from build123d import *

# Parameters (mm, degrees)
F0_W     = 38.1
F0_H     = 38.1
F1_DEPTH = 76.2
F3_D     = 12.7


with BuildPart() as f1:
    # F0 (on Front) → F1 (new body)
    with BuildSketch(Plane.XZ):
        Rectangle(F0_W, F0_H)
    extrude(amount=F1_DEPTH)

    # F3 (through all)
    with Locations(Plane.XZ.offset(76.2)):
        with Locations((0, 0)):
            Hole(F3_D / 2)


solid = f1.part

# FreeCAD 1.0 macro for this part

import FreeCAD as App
import Part
import Sketcher

V = App.Vector
Q = App.Units.Quantity


def add_polygon(sketch, points):
    """Adds a closed chain of lines whose ends are joined by coincident constraints."""
    first, n = sketch.GeometryCount, len(points)
    for a, b in zip(points, points[1:] + points[:1]):
        sketch.addGeometry(Part.LineSegment(App.Vector(*a, 0), App.Vector(*b, 0)), False)
    for i in range(n):
        sketch.addConstraint(Sketcher.Constraint("Coincident", first + i, 2, first + (i + 1) % n, 1))

doc = App.newDocument("Part")
body = doc.addObject("PartDesign::Body", "Body")

# Sketch on XZ plane
sketch1 = body.newObject("Sketcher::SketchObject", "Sketch")
sketch1.AttachmentSupport = (doc.getObject("XZ_Plane"), [""])
sketch1.MapMode = "FlatFace"
add_polygon(sketch1, [(-19.05, 19.05), (-19.05, -19.05), (19.05, -19.05), (19.05, 19.05)])  # lines 0-3
sketch1.addConstraint([
    Sketcher.Constraint("Vertical", 0),
    Sketcher.Constraint("Horizontal", 1),
    Sketcher.Constraint("Vertical", 2),
    Sketcher.Constraint("Horizontal", 3),
    Sketcher.Constraint("Symmetric", 0, 2, 2, 2, -1, 1),
    Sketcher.Constraint("Equal", 3, 0),
    Sketcher.Constraint("DistanceX", 1, 1, 1, 2, Q("1.5 in")),
])
pad1 = body.newObject("PartDesign::Pad", "Pad")
pad1.Profile = sketch1
pad1.Length = Q("3 in")

# Sketch on XZ plane
sketch2 = body.newObject("Sketcher::SketchObject", "Sketch001")
sketch2.AttachmentSupport = (doc.getObject("XZ_Plane"), [""])
sketch2.MapMode = "FlatFace"
sketch2.AttachmentOffset = App.Placement(V(0, 0, 3 * 25.4), App.Rotation())
sketch2.addGeometry(Part.Circle(V(0, 0, 0), V(0, 0, 1), 6.35), False)
sketch2.addConstraint([
    Sketcher.Constraint("Coincident", 0, 3, -1, 1),
    Sketcher.Constraint("Diameter", 0, Q("0.5 in")),
])
doc.recompute()
hole = body.newObject("PartDesign::Hole", "Hole")
hole.Profile = sketch2
hole.ThreadType = "None"
hole.Diameter = Q("0.5 in")
hole.DepthType = "ThroughAll"

doc.recompute()
